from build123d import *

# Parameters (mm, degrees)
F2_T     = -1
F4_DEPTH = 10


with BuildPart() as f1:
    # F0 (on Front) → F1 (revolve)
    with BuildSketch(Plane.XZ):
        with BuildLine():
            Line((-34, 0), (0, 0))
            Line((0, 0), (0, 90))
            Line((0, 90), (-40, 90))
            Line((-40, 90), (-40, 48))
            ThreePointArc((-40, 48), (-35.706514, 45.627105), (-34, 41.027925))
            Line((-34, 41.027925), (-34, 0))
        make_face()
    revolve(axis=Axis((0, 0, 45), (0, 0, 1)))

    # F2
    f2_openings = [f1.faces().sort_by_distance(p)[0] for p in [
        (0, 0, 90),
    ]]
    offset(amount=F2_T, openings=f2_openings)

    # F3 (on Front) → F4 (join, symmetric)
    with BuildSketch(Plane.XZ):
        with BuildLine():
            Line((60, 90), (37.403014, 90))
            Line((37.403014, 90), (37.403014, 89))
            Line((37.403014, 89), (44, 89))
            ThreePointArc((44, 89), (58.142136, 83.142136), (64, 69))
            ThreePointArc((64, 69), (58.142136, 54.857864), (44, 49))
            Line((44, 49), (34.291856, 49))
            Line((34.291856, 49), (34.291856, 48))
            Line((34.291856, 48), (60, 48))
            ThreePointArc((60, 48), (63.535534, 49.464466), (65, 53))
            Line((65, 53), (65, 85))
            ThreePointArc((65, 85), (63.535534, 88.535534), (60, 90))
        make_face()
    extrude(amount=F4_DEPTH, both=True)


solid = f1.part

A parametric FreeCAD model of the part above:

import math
import FreeCAD as App
import Part
import Sketcher

V = App.Vector
Q = App.Units.Quantity


def faces_at(feature, points):
    """Names of the faces that lie closest to the given points."""
    faces = feature.Shape.Faces
    near = lambda p: min(range(len(faces)), key=lambda i: faces[i].distToShape(Part.Vertex(*p))[0])
    return sorted({f"Face{near(p) + 1}" for p in points})

doc = App.newDocument("Part")
body = doc.addObject("PartDesign::Body", "Body")

# Sketch on XZ plane
sketch1 = body.newObject("Sketcher::SketchObject", "Sketch")
sketch1.AttachmentSupport = (doc.getObject("XZ_Plane"), [""])
sketch1.MapMode = "FlatFace"
sketch1.addGeometry(Part.LineSegment(V(-34, 0, 0), V(0, 0, 0)), False)
sketch1.addGeometry(Part.LineSegment(V(0, 0, 0), V(0, 90, 0)), False)
sketch1.addGeometry(Part.LineSegment(V(0, 90, 0), V(-40, 90, 0)), False)
sketch1.addGeometry(Part.LineSegment(V(-40, 90, 0), V(-40, 48, 0)), False)
sketch1.addGeometry(Part.ArcOfCircle(Part.Circle(V(-41.050818, 41.027926, 0), V(0, 0, 1), 7.050818), math.radians(-0.000005), math.radians(81.428995)), False)
sketch1.addGeometry(Part.LineSegment(V(-34, 41.027925, 0), V(-34, 0, 0)), False)
sketch1.addConstraint(Sketcher.Constraint("Coincident", 0, 2, 1, 1))
sketch1.addConstraint(Sketcher.Constraint("Coincident", 1, 2, 2, 1))
sketch1.addConstraint(Sketcher.Constraint("Coincident", 2, 2, 3, 1))
sketch1.addConstraint(Sketcher.Constraint("Coincident", 3, 2, 4, 2))
sketch1.addConstraint(Sketcher.Constraint("Tangent", 4, 1, 5, 1))
sketch1.addConstraint(Sketcher.Constraint("Coincident", 5, 2, 0, 1))
sketch1.addConstraint(Sketcher.Constraint("Horizontal", 0))
sketch1.addConstraint(Sketcher.Constraint("Vertical", 1))
sketch1.addConstraint(Sketcher.Constraint("Horizontal", 2))
sketch1.addConstraint(Sketcher.Constraint("Vertical", 3))
sketch1.addConstraint(Sketcher.Constraint("Vertical", 5))
sketch1.addConstraint(Sketcher.Constraint("Coincident", 0, 2, -1, 1))
sketch1.addConstraint(Sketcher.Constraint("DistanceX", 0, 1, 0, 2, Q("34 mm")))
sketch1.addConstraint(Sketcher.Constraint("DistanceX", 2, 2, 2, 1, Q("40 mm")))
sketch1.addConstraint(Sketcher.Constraint("DistanceY", 1, 1, 1, 2, Q("90 mm")))
sketch1.addConstraint(Sketcher.Constraint("DistanceY", 3, 2, 3, 1, Q("42 mm")))
sketch1.addConstraint(Sketcher.Constraint("Radius", 4, Q("7.050818 mm")))
revolution = body.newObject("PartDesign::Revolution", "Revolution")
revolution.Profile = sketch1
revolution.ReferenceAxis = (sketch1, ["V_Axis"])
revolution.Angle = 360
doc.recompute()

thickness = body.newObject("PartDesign::Thickness", "Thickness")
thickness.Base = (revolution, faces_at(revolution, [(0, 0, 90)]))
thickness.Value = 1
thickness.Reversed = True
thickness.Join = "Arc"

# Sketch on XZ plane
sketch2 = body.newObject("Sketcher::SketchObject", "Sketch001")
sketch2.AttachmentSupport = (doc.getObject("XZ_Plane"), [""])
sketch2.MapMode = "FlatFace"
sketch2.addGeometry(Part.LineSegment(V(60, 90, 0), V(37.403014, 90, 0)), False)
sketch2.addGeometry(Part.LineSegment(V(37.403014, 90, 0), V(37.403014, 89, 0)), False)
sketch2.addGeometry(Part.LineSegment(V(37.403014, 89, 0), V(44, 89, 0)), False)
sketch2.addGeometry(Part.ArcOfCircle(Part.Circle(V(44.000001, 69.000001, 0), V(0, 0, 1), 19.999999), math.radians(-0.000004), math.radians(90.000004)), False)
sketch2.addGeometry(Part.ArcOfCircle(Part.Circle(V(44.000001, 68.999999, 0), V(0, 0, 1), 19.999999), math.radians(-90.000004), math.radians(0.000004)), False)
sketch2.addGeometry(Part.LineSegment(V(44, 49, 0), V(34.291856, 49, 0)), False)
sketch2.addGeometry(Part.LineSegment(V(34.291856, 49, 0), V(34.291856, 48, 0)), False)
sketch2.addGeometry(Part.LineSegment(V(34.291856, 48, 0), V(60, 48, 0)), False)
sketch2.addGeometry(Part.ArcOfCircle(Part.Circle(V(60, 53, 0), V(0, 0, 1), 5), math.radians(-90.000004), math.radians(0.000004)), False)
sketch2.addGeometry(Part.LineSegment(V(65, 53, 0), V(65, 85, 0)), False)
sketch2.addGeometry(Part.ArcOfCircle(Part.Circle(V(60, 85, 0), V(0, 0, 1), 5), math.radians(-0.000004), math.radians(90.000004)), False)
sketch2.addConstraint(Sketcher.Constraint("Coincident", 0, 2, 1, 1))
sketch2.addConstraint(Sketcher.Constraint("Coincident", 1, 2, 2, 1))
sketch2.addConstraint(Sketcher.Constraint("Tangent", 2, 2, 3, 2))
sketch2.addConstraint(Sketcher.Constraint("Tangent", 3, 1, 4, 2))
sketch2.addConstraint(Sketcher.Constraint("Tangent", 4, 1, 5, 1))
sketch2.addConstraint(Sketcher.Constraint("Coincident", 5, 2, 6, 1))
sketch2.addConstraint(Sketcher.Constraint("Coincident", 6, 2, 7, 1))
sketch2.addConstraint(Sketcher.Constraint("Tangent", 7, 2, 8, 1))
sketch2.addConstraint(Sketcher.Constraint("Tangent", 8, 2, 9, 1))
sketch2.addConstraint(Sketcher.Constraint("Tangent", 9, 2, 10, 1))
sketch2.addConstraint(Sketcher.Constraint("Tangent", 10, 2, 0, 1))
sketch2.addConstraint(Sketcher.Constraint("Horizontal", 0))
sketch2.addConstraint(Sketcher.Constraint("Vertical", 1))
sketch2.addConstraint(Sketcher.Constraint("Horizontal", 2))
sketch2.addConstraint(Sketcher.Constraint("Horizontal", 5))
sketch2.addConstraint(Sketcher.Constraint("Vertical", 6))
sketch2.addConstraint(Sketcher.Constraint("Horizontal", 7))
sketch2.addConstraint(Sketcher.Constraint("Vertical", 9))
sketch2.addConstraint(Sketcher.Constraint("Equal", 3, 4))
sketch2.addConstraint(Sketcher.Constraint("Equal", 8, 10))
sketch2.addConstraint(Sketcher.Constraint("Horizontal", 4, 3, 3, 1))
sketch2.addConstraint(Sketcher.Constraint("Equal", 1, 6))
sketch2.addConstraint(Sketcher.Constraint("Radius", 3, Q("19.999999 mm")))
sketch2.addConstraint(Sketcher.Constraint("Radius", 8, Q("5 mm")))
sketch2.addConstraint(Sketcher.Constraint("DistanceY", 1, 2, 1, 1, Q("1 mm")))
sketch2.addConstraint(Sketcher.Constraint("DistanceX", -1, 1, 3, 3, Q("44.000001 mm")))
sketch2.addConstraint(Sketcher.Constraint("DistanceY", -1, 1, 3, 3, Q("69.000001 mm")))
sketch2.addConstraint(Sketcher.Constraint("DistanceX", -1, 1, 8, 3, Q("60 mm")))
sketch2.addConstraint(Sketcher.Constraint("DistanceX", 0, 2, 0, 1, Q("22.596986 mm")))
sketch2.addConstraint(Sketcher.Constraint("DistanceX", 5, 2, 5, 1, Q("9.708144 mm")))
pad1 = body.newObject("PartDesign::Pad", "Pad")
pad1.Profile = sketch2
pad1.Length = 20
pad1.Midplane = True

doc.recompute()
